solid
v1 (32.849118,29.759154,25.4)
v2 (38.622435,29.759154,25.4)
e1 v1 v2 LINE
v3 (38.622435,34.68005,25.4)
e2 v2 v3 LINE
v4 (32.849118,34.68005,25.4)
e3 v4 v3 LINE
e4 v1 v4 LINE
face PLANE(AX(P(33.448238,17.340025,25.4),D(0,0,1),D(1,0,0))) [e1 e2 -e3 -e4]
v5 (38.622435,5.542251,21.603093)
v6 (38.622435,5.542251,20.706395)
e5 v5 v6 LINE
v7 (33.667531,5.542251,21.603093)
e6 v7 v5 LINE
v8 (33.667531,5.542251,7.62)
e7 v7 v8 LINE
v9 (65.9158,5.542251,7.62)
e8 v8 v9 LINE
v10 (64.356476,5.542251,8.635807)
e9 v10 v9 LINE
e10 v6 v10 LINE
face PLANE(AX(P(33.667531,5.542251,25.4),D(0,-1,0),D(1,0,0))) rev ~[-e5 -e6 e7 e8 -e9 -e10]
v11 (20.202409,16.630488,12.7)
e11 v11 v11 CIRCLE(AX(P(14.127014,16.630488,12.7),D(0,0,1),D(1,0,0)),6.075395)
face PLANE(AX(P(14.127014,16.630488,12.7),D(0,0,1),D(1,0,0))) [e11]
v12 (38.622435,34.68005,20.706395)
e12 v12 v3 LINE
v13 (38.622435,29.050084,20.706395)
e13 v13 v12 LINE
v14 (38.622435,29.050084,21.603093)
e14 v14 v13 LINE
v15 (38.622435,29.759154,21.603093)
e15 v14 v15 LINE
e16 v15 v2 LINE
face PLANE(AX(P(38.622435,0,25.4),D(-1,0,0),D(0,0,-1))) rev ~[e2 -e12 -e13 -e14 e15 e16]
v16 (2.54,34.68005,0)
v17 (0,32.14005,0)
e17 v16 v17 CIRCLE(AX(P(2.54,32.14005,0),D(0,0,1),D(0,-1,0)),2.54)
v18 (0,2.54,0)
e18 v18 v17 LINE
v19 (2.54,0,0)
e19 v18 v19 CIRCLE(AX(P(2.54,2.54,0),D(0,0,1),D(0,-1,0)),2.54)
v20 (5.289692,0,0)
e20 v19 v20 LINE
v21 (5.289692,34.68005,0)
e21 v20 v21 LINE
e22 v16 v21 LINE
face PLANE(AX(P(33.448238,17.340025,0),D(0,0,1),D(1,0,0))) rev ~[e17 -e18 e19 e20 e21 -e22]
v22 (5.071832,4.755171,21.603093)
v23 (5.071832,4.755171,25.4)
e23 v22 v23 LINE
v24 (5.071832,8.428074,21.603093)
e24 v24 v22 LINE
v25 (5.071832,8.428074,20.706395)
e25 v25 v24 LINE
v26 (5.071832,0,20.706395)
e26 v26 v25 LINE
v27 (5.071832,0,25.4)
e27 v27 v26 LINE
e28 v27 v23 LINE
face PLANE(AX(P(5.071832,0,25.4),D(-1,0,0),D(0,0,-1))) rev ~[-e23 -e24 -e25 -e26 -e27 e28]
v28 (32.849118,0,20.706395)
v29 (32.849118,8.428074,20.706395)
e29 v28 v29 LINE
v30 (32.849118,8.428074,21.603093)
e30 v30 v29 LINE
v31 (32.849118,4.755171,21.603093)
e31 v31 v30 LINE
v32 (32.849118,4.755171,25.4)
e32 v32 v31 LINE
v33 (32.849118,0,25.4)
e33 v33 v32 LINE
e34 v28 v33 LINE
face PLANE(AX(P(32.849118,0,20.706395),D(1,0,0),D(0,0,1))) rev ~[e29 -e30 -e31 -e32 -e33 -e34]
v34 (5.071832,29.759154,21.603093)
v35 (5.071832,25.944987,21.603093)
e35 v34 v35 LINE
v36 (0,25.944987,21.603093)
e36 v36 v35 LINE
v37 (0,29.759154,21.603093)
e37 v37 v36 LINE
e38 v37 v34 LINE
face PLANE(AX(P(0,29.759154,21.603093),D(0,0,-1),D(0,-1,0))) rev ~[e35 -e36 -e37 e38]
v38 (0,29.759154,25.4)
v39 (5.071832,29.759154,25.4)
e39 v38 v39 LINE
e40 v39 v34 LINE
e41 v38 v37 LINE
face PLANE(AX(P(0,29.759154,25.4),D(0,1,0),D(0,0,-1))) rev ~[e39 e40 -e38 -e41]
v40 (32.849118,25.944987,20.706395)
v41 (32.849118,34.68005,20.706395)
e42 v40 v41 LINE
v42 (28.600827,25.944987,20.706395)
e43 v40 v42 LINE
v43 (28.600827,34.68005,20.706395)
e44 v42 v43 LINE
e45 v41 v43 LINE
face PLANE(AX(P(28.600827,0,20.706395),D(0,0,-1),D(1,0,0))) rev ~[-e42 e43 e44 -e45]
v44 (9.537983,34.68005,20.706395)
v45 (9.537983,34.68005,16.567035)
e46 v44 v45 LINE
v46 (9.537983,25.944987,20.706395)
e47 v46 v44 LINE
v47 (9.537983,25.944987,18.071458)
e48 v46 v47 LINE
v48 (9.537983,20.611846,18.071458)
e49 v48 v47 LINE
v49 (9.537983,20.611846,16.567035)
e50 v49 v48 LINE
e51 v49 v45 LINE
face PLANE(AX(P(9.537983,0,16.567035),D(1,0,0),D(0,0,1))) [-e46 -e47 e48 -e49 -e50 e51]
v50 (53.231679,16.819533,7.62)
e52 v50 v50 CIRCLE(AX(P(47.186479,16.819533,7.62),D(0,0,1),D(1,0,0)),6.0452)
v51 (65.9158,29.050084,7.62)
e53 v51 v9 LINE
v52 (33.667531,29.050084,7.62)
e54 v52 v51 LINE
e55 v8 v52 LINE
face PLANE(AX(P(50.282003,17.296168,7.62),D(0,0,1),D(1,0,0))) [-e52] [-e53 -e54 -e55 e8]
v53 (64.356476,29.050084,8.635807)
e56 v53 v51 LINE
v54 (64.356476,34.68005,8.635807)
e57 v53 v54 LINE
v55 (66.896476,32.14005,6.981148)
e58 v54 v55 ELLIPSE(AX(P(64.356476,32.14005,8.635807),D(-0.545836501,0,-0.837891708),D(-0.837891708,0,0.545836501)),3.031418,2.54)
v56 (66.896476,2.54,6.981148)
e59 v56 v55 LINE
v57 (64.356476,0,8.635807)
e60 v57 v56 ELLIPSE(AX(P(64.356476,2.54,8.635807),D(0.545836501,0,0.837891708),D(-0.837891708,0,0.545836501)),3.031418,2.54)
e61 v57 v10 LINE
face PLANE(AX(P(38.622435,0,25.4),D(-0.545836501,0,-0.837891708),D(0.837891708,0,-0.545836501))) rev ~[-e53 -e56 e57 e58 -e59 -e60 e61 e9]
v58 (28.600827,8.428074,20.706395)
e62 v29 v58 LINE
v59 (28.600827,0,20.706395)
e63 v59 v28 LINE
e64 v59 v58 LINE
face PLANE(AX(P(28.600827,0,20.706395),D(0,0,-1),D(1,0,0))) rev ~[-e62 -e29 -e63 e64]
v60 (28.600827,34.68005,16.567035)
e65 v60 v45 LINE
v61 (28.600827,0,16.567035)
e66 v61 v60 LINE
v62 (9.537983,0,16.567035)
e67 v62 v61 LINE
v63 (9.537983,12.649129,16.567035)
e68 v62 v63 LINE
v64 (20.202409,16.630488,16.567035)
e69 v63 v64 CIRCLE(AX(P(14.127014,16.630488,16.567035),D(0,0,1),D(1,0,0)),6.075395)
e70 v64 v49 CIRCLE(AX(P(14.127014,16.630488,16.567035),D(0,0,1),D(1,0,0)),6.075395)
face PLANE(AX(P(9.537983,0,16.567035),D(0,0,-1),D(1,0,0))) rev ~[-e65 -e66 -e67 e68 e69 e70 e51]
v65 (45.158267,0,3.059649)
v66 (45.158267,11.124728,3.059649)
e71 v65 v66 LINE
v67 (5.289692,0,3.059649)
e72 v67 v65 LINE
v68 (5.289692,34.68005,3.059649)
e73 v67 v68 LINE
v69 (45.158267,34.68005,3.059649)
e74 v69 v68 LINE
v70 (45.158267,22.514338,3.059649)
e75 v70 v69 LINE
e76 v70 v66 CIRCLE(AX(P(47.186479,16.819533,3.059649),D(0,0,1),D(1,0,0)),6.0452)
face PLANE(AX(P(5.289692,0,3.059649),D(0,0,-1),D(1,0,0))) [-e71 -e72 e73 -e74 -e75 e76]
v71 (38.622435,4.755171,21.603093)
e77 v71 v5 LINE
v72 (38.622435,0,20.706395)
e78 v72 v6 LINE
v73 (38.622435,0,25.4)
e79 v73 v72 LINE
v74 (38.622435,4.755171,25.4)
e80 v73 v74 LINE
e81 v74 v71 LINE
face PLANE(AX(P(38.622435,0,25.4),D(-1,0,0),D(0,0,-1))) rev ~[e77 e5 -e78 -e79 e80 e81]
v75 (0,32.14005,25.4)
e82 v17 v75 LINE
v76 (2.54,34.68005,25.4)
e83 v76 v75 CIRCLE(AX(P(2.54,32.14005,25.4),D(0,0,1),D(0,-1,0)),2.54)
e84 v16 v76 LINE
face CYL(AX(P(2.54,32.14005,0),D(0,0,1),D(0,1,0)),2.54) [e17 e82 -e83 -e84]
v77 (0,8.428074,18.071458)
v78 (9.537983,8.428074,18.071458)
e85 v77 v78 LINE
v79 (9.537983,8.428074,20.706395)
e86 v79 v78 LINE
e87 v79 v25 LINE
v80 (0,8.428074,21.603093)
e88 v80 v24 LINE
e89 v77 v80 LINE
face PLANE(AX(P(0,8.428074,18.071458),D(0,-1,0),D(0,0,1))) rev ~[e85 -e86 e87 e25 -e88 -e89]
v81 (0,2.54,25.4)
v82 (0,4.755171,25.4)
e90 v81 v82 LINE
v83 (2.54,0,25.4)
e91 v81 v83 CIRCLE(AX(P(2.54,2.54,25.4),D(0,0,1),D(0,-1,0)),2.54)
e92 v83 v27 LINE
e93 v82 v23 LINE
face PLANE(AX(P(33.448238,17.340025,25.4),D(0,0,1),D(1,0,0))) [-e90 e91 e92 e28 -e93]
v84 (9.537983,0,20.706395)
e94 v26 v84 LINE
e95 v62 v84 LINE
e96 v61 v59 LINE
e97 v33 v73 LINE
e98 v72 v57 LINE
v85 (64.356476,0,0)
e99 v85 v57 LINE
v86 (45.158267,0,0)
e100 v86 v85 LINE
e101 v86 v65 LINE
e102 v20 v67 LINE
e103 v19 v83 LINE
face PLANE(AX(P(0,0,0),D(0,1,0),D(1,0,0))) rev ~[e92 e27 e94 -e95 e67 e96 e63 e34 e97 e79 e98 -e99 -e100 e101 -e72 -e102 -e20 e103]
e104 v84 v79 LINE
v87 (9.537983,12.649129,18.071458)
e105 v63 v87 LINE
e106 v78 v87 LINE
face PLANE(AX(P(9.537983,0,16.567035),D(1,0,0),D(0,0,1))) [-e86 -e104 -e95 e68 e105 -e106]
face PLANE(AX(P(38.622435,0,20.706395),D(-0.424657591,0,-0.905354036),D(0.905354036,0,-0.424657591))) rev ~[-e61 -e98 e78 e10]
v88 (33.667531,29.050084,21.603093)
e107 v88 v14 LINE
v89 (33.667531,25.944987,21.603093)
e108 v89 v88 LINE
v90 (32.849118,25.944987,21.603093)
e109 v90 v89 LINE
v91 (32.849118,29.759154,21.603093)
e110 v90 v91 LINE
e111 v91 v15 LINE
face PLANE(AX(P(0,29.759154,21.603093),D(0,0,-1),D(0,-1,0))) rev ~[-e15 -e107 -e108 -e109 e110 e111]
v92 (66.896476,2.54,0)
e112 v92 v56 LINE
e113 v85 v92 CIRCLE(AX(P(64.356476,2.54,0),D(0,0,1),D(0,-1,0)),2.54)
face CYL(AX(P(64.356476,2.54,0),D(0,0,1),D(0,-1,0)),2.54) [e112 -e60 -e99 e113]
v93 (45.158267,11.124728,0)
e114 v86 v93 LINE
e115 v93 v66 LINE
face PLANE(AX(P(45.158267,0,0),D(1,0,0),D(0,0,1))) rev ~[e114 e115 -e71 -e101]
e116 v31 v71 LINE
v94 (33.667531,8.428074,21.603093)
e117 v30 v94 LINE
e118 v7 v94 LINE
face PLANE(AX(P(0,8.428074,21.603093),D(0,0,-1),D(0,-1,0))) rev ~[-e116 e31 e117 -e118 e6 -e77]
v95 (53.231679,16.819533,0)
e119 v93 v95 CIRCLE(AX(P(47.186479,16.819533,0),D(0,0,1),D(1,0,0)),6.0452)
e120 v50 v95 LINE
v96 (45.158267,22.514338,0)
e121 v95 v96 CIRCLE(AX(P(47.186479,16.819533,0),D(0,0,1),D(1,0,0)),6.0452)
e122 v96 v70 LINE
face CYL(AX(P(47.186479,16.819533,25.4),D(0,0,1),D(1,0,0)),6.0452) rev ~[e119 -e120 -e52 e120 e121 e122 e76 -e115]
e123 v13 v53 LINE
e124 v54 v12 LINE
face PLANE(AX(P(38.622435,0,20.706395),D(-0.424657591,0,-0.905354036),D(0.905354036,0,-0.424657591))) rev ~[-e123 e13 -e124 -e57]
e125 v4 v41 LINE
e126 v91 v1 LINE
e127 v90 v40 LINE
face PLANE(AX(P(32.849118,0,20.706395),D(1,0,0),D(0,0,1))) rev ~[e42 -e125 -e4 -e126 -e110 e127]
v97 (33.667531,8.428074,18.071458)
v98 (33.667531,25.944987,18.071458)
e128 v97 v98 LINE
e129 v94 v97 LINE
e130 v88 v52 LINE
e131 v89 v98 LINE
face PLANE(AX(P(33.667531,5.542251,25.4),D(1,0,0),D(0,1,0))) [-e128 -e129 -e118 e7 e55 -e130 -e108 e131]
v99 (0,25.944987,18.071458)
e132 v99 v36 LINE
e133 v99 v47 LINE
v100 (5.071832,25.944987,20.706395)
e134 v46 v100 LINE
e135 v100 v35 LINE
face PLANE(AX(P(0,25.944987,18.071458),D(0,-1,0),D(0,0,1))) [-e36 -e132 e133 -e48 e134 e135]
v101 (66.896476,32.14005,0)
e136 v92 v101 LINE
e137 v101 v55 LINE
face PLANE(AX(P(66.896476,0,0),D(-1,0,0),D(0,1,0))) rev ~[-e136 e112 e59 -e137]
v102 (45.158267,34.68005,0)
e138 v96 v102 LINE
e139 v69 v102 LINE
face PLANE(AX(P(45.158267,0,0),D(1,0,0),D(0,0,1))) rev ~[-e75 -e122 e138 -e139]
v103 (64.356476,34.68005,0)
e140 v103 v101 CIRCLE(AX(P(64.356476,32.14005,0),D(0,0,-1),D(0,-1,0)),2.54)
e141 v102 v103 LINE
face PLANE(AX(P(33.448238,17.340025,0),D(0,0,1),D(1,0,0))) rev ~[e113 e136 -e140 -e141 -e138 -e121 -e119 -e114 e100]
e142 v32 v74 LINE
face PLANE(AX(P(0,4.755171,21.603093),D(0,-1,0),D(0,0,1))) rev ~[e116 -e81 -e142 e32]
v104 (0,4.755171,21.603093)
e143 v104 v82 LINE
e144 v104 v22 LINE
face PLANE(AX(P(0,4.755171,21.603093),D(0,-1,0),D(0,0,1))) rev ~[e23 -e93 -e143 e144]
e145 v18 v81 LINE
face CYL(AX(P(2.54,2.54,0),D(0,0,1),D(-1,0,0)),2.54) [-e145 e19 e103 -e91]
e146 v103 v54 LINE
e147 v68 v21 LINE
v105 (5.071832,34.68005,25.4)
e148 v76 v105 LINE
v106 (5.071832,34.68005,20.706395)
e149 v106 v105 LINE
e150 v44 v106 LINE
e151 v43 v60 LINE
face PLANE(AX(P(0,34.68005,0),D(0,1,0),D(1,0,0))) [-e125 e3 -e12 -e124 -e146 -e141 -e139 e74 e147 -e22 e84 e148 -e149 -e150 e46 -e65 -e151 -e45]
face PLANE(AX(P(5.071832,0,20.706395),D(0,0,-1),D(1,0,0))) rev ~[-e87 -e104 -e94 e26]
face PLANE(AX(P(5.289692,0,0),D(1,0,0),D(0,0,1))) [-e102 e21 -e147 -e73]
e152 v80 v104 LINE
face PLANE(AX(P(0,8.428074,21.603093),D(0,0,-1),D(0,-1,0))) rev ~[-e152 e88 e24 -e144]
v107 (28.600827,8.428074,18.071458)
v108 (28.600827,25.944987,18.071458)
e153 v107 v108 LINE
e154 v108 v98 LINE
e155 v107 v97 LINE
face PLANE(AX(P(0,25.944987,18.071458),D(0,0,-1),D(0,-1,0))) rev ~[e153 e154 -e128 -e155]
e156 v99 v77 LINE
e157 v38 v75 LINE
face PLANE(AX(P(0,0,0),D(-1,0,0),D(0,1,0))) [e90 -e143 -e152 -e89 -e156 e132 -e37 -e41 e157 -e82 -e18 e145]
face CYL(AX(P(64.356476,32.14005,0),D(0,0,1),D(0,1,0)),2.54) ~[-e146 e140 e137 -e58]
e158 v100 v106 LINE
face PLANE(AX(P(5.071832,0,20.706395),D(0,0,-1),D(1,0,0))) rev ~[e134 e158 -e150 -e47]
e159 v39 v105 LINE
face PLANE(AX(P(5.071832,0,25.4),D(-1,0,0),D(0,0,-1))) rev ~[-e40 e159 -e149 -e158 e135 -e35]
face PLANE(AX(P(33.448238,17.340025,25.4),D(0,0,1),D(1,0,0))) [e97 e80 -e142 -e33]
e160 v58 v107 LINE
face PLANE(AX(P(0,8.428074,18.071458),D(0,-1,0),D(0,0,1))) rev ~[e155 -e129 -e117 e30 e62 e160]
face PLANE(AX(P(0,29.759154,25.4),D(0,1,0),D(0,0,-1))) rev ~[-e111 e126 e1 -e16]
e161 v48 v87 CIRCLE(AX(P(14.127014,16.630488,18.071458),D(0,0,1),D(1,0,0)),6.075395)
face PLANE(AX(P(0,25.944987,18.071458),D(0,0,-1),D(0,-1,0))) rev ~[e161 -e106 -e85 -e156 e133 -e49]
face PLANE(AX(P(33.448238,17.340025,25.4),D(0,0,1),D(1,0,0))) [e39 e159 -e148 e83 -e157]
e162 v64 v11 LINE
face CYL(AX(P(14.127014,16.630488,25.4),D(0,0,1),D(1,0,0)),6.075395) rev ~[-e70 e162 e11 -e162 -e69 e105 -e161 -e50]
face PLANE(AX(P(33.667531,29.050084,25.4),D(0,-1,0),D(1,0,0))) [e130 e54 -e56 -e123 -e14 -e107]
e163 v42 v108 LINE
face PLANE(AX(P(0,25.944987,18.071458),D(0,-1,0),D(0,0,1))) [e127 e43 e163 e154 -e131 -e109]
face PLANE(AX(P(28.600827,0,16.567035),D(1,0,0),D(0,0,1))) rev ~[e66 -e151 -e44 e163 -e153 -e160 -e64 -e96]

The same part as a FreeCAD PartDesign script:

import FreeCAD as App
import Part
import Sketcher
from FreeCAD import Vector
Q = App.Units.Quantity


def edges_at(feature, points):
    """Names of the edges that pass closest to the given points."""
    edges = feature.Shape.Edges
    near = lambda p: min(range(len(edges)), key=lambda i: edges[i].distToShape(Part.Vertex(*p))[0])
    return sorted({f"Edge{near(p) + 1}" for p in points})


def add_polygon(sketch, points):
    """Adds a closed chain of lines whose ends are joined by coincident constraints."""
    first, n = sketch.GeometryCount, len(points)
    for a, b in zip(points, points[1:] + points[:1]):
        sketch.addGeometry(Part.LineSegment(App.Vector(*a, 0), App.Vector(*b, 0)), False)
    for i in range(n):
        sketch.addConstraint(Sketcher.Constraint("Coincident", first + i, 2, first + (i + 1) % n, 1))

doc = App.newDocument("Part")
body = doc.addObject("PartDesign::Body", "Body")

# Sketch on XY plane
sketch1 = doc.addObject("Sketcher::SketchObject", "Sketch")
body.addObject(sketch1)
sketch1.AttachmentSupport = (doc.XY_Plane, [""])
sketch1.MapMode = "FlatFace"
add_polygon(sketch1, [(0, 35), (0, 0), (67, 0), (67, 35)])  # lines 0-3
sketch1.addConstraint(Sketcher.Constraint("Vertical", 0))
sketch1.addConstraint(Sketcher.Constraint("Horizontal", 1))
sketch1.addConstraint(Sketcher.Constraint("Vertical", 2))
sketch1.addConstraint(Sketcher.Constraint("Horizontal", 3))
sketch1.addConstraint(Sketcher.Constraint("Coincident", 0, 2, -1, 1))
sketch1.addConstraint(Sketcher.Constraint("DistanceY", 0, 2, 0, 1, 34.68005))
sketch1.addConstraint(Sketcher.Constraint("DistanceX", 1, 1, 1, 2, 66.896476))
pad1 = doc.addObject("PartDesign::Pad", "Pad")
body.addObject(pad1)
pad1.Profile = sketch1
pad1.Length = Q("1 in")

# Sketch on XY plane
sketch2 = doc.addObject("Sketcher::SketchObject", "Sketch001")
body.addObject(sketch2)
sketch2.AttachmentSupport = (doc.XY_Plane, [""])
sketch2.MapMode = "FlatFace"
sketch2.AttachmentOffset = App.Placement(Vector(0, 0, 1 * 25.4), App.Rotation())
sketch2.addGeometry(Part.Circle(Vector(47, 17, 0), Vector(0, 0, 1), 6), False)
sketch2.addConstraint(Sketcher.Constraint("Diameter", 0, Q("0.476 in")))
sketch2.addConstraint(Sketcher.Constraint("DistanceX", -1, 1, 0, 3, 47.186479))
sketch2.addConstraint(Sketcher.Constraint("DistanceY", -1, 1, 0, 3, 16.819533))
pocket1 = doc.addObject("PartDesign::Pocket", "Pocket")
body.addObject(pocket1)
pocket1.Profile = sketch2
pocket1.Type = "ThroughAll"

# Sketch on XY plane
sketch3 = doc.addObject("Sketcher::SketchObject", "Sketch002")
body.addObject(sketch3)
sketch3.AttachmentSupport = (doc.XY_Plane, [""])
sketch3.MapMode = "FlatFace"
sketch3.AttachmentOffset = App.Placement(Vector(0, 0, 1 * 25.4), App.Rotation())
sketch3.addGeometry(Part.Circle(Vector(14, 17, 0), Vector(0, 0, 1), 6), False)
sketch3.addConstraint(Sketcher.Constraint("Diameter", 0, 12.15079))
sketch3.addConstraint(Sketcher.Constraint("DistanceX", -1, 1, 0, 3, 14.127014))
sketch3.addConstraint(Sketcher.Constraint("DistanceY", -1, 1, 0, 3, 16.630488))
pocket2 = doc.addObject("PartDesign::Pocket", "Pocket001")
body.addObject(pocket2)
pocket2.Profile = sketch3
pocket2.Length = Q("0.5 in")

# Sketch on XY plane
sketch4 = doc.addObject("Sketcher::SketchObject", "Sketch003")
body.addObject(sketch4)
sketch4.AttachmentSupport = (doc.XY_Plane, [""])
sketch4.MapMode = "FlatFace"
sketch4.AttachmentOffset = App.Placement(Vector(0, 0, 1 * 25.4), App.Rotation())
add_polygon(sketch4, [(34, 29), (34, 6), (67, 6), (67, 29)])  # lines 0-3
sketch4.addGeometry(Part.Circle(Vector(47, 17, 0), Vector(0, 0, 1), 6), False)  # 4
sketch4.addConstraint(Sketcher.Constraint("Vertical", 0))
sketch4.addConstraint(Sketcher.Constraint("Horizontal", 1))
sketch4.addConstraint(Sketcher.Constraint("Vertical", 2))
sketch4.addConstraint(Sketcher.Constraint("Horizontal", 3))
sketch4.addConstraint(Sketcher.Constraint("Diameter", 4, Q("0.476 in")))
sketch4.addConstraint(Sketcher.Constraint("DistanceX", 1, 1, 1, 2, 33.228945))
sketch4.addConstraint(Sketcher.Constraint("DistanceY", 0, 2, 0, 1, 23.507833))
sketch4.addConstraint(Sketcher.Constraint("DistanceX", -1, 1, 4, 3, 47.186479))
sketch4.addConstraint(Sketcher.Constraint("DistanceX", -1, 1, 0, 2, 33.667531))
sketch4.addConstraint(Sketcher.Constraint("DistanceY", -1, 1, 0, 2, 5.542251))
sketch4.addConstraint(Sketcher.Constraint("DistanceY", 0, 2, 4, 3, 11.277282))
pocket3 = doc.addObject("PartDesign::Pocket", "Pocket002")
body.addObject(pocket3)
pocket3.Profile = sketch4
pocket3.Length = Q("0.7 in")

# Sketch on XZ plane
sketch5 = doc.addObject("Sketcher::SketchObject", "Sketch004")
body.addObject(sketch5)
sketch5.AttachmentSupport = (doc.XZ_Plane, [""])
sketch5.MapMode = "FlatFace"
add_polygon(sketch5, [(9.5, 20.7), (9.5, 16.6), (28.6, 16.6), (28.6, 20.7), (32.8, 20.7), (32.8, 25.4), (5.1, 25.4), (5.1, 20.7)])  # lines 0-7
add_polygon(sketch5, [(66.9, 25.4), (38.6, 25.4), (66.9, 7)])  # lines 8-10
add_polygon(sketch5, [(5.3, 3.1), (5.3, 0), (45.2, 0), (45.2, 3.1)])  # lines 11-14
sketch5.addConstraint(Sketcher.Constraint("Vertical", 0))
sketch5.addConstraint(Sketcher.Constraint("Horizontal", 1))
sketch5.addConstraint(Sketcher.Constraint("Vertical", 2))
sketch5.addConstraint(Sketcher.Constraint("Horizontal", 3))
sketch5.addConstraint(Sketcher.Constraint("Vertical", 4))
sketch5.addConstraint(Sketcher.Constraint("Horizontal", 5))
sketch5.addConstraint(Sketcher.Constraint("Vertical", 6))
sketch5.addConstraint(Sketcher.Constraint("Horizontal", 7))
sketch5.addConstraint(Sketcher.Constraint("Horizontal", 8))
sketch5.addConstraint(Sketcher.Constraint("Vertical", 10))
sketch5.addConstraint(Sketcher.Constraint("Vertical", 11))
sketch5.addConstraint(Sketcher.Constraint("Horizontal", 12))
sketch5.addConstraint(Sketcher.Constraint("Vertical", 13))
sketch5.addConstraint(Sketcher.Constraint("Horizontal", 14))
sketch5.addConstraint(Sketcher.Constraint("PointOnObject", 11, 2, -1))
sketch5.addConstraint(Sketcher.Constraint("Horizontal", 3, 2, 6, 2))
sketch5.addConstraint(Sketcher.Constraint("Horizontal", 5, 2, 8, 2))
sketch5.addConstraint(Sketcher.Constraint("DistanceY", -1, 1, 4, 2, Q("1 in")))
sketch5.addConstraint(Sketcher.Constraint("DistanceX", 3, 1, 3, 2, 4.248291))
sketch5.addConstraint(Sketcher.Constraint("DistanceX", 7, 1, 7, 2, 4.466151))
sketch5.addConstraint(Sketcher.Constraint("DistanceX", 8, 2, 8, 1, 28.274041))
sketch5.addConstraint(Sketcher.Constraint("DistanceY", 0, 2, 0, 1, 4.13936))
sketch5.addConstraint(Sketcher.Constraint("DistanceY", 11, 2, 11, 1, 3.059649))
sketch5.addConstraint(Sketcher.Constraint("DistanceY", 13, 2, 9, 2, 3.921499))
sketch5.addConstraint(Sketcher.Constraint("DistanceX", 1, 1, 1, 2, 19.062844))
sketch5.addConstraint(Sketcher.Constraint("DistanceX", 12, 1, 12, 2, 39.868575))
sketch5.addConstraint(Sketcher.Constraint("DistanceY", 4, 1, 4, 2, 4.693605))
sketch5.addConstraint(Sketcher.Constraint("DistanceX", -1, 1, 3, 2, 32.849118))
sketch5.addConstraint(Sketcher.Constraint("DistanceX", -1, 1, 11, 2, 5.289692))
sketch5.addConstraint(Sketcher.Constraint("DistanceX", 2, 2, 8, 2, 10.021608))
pocket4 = doc.addObject("PartDesign::Pocket", "Pocket003")
body.addObject(pocket4)
pocket4.Profile = sketch5
pocket4.Type = "ThroughAll"

# Sketch on YZ plane
sketch6 = doc.addObject("Sketcher::SketchObject", "Sketch005")
body.addObject(sketch6)
sketch6.AttachmentSupport = (doc.YZ_Plane, [""])
sketch6.MapMode = "FlatFace"
add_polygon(sketch6, [(4.8, 25.4), (29.8, 25.4), (29.8, 21.6), (25.9, 21.6), (25.9, 18.1), (8.4, 18.1), (8.4, 21.6), (4.8, 21.6)])  # lines 0-7
sketch6.addConstraint(Sketcher.Constraint("Horizontal", 0))
sketch6.addConstraint(Sketcher.Constraint("Vertical", 1))
sketch6.addConstraint(Sketcher.Constraint("Horizontal", 2))
sketch6.addConstraint(Sketcher.Constraint("Vertical", 3))
sketch6.addConstraint(Sketcher.Constraint("Horizontal", 4))
sketch6.addConstraint(Sketcher.Constraint("Vertical", 5))
sketch6.addConstraint(Sketcher.Constraint("Horizontal", 6))
sketch6.addConstraint(Sketcher.Constraint("Vertical", 7))
sketch6.addConstraint(Sketcher.Constraint("Horizontal", 2, 2, 5, 2))
sketch6.addConstraint(Sketcher.Constraint("DistanceY", -1, 1, 0, 2, Q("1 in")))
sketch6.addConstraint(Sketcher.Constraint("DistanceX", 0, 1, 0, 2, 25.003983))
sketch6.addConstraint(Sketcher.Constraint("DistanceX", 2, 2, 2, 1, 3.814166))
sketch6.addConstraint(Sketcher.Constraint("DistanceX", 4, 2, 4, 1, 17.516913))
sketch6.addConstraint(Sketcher.Constraint("DistanceY", 1, 2, 1, 1, 3.796907))
sketch6.addConstraint(Sketcher.Constraint("DistanceY", 3, 2, 3, 1, 3.531635))
sketch6.addConstraint(Sketcher.Constraint("DistanceX", -1, 1, 6, 2, 4.755171))
pocket5 = doc.addObject("PartDesign::Pocket", "Pocket004")
body.addObject(pocket5)
pocket5.Profile = sketch6
pocket5.Type = "ThroughAll"
pocket5.Reversed = True
doc.recompute()

fillet = doc.addObject("PartDesign::Fillet", "Fillet")
body.addObject(fillet)
fillet.Base = (pocket5, edges_at(pocket5, [(66.896, 0, 3.491), (66.896, 34.68, 3.491)]))
fillet.Radius = Q("0.1 in")
doc.recompute()

fillet2 = doc.addObject("PartDesign::Fillet", "Fillet001")
body.addObject(fillet2)
fillet2.Base = (fillet, edges_at(fillet, [(0, 34.68, 12.7), (0, 0, 12.7)]))
fillet2.Radius = Q("0.1 in")

# Sketch on XZ plane
sketch7 = doc.addObject("Sketcher::SketchObject", "Sketch006")
body.addObject(sketch7)
sketch7.AttachmentSupport = (doc.XZ_Plane, [""])
sketch7.MapMode = "FlatFace"
add_polygon(sketch7, [(64.4, 8.6), (38.6, 25.4), (38.6, 20.7)])  # lines 0-2
sketch7.addConstraint(Sketcher.Constraint("Vertical", 1))
sketch7.addConstraint(Sketcher.Constraint("DistanceY", -1, 1, 0, 2, Q("1 in")))
sketch7.addConstraint(Sketcher.Constraint("Distance", 0, 30.712848))
sketch7.addConstraint(Sketcher.Constraint("DistanceY", 1, 2, 1, 1, 4.693605))
sketch7.addConstraint(Sketcher.Constraint("DistanceX", 1, 2, 2, 2, 25.734041))
sketch7.addConstraint(Sketcher.Constraint("DistanceX", -1, 1, 0, 2, 38.622435))
pocket6 = doc.addObject("PartDesign::Pocket", "Pocket005")
body.addObject(pocket6)
pocket6.Profile = sketch7
pocket6.Type = "ThroughAll"

doc.recompute()
